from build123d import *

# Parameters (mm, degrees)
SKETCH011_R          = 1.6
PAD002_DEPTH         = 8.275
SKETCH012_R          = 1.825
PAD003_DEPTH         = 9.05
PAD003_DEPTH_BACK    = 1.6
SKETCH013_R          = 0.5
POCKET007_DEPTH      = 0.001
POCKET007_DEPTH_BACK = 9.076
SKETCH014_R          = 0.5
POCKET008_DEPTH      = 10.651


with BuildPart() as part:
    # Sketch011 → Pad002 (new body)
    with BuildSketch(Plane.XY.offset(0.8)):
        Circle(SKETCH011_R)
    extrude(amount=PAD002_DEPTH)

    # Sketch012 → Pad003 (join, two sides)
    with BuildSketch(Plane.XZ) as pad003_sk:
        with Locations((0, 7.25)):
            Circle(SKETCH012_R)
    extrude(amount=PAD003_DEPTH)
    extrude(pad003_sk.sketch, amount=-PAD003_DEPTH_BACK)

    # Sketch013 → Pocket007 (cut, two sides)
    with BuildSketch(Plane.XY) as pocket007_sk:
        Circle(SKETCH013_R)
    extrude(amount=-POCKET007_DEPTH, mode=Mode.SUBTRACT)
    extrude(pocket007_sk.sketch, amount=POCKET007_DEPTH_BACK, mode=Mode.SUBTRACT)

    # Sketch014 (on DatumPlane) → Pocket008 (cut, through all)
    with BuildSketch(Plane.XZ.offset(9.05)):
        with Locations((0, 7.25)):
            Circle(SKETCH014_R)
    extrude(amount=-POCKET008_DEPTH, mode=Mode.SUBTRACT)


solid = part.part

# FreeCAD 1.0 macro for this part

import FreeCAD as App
import Part
import Sketcher
Q = App.Units.Quantity

doc = App.newDocument("Part")
body = doc.addObject("PartDesign::Body", "Body")

# Sketch on XY plane
sketch1 = body.newObject("Sketcher::SketchObject", "Sketch")
sketch1.AttachmentSupport = (doc.getObject("XY_Plane"), [""])
sketch1.MapMode = "FlatFace"
sketch1.AttachmentOffset = App.Placement(App.Vector(0, 0, 0.8), App.Rotation())
sketch1.addGeometry(Part.Circle(App.Vector(0, 0, 0), App.Vector(0, 0, 1), 1.6), False)
sketch1.addConstraint([
    Sketcher.Constraint("Coincident", 0, 3, -1, 1),
    Sketcher.Constraint("Diameter", 0, Q("3.2 mm")),
])
pad1 = body.newObject("PartDesign::Pad", "Pad")
pad1.Profile = sketch1
pad1.Length = 8.275

# Sketch on XZ plane
sketch2 = body.newObject("Sketcher::SketchObject", "Sketch001")
sketch2.AttachmentSupport = (doc.getObject("XZ_Plane"), [""])
sketch2.MapMode = "FlatFace"
sketch2.addGeometry(Part.Circle(App.Vector(0, 7.25, 0), App.Vector(0, 0, 1), 1.825), False)
sketch2.addConstraint([
    Sketcher.Constraint("PointOnObject", 0, 3, -2),
    Sketcher.Constraint("Diameter", 0, Q("3.65 mm")),
    Sketcher.Constraint("DistanceY", -1, 1, 0, 3, Q("7.25 mm")),
])
pad2 = body.newObject("PartDesign::Pad", "Pad001")
pad2.Profile = sketch2
pad2.Type = "TwoLengths"
pad2.Length = 9.05
pad2.Length2 = 1.6

# Sketch on XY plane
sketch3 = body.newObject("Sketcher::SketchObject", "Sketch002")
sketch3.AttachmentSupport = (doc.getObject("XY_Plane"), [""])
sketch3.MapMode = "FlatFace"
sketch3.addGeometry(Part.Circle(App.Vector(0, 0, 0), App.Vector(0, 0, 1), 0.5), False)
sketch3.addConstraint([
    Sketcher.Constraint("Coincident", 0, 3, -1, 1),
    Sketcher.Constraint("Diameter", 0, Q("1 mm")),
])
pocket1 = body.newObject("PartDesign::Pocket", "Pocket")
pocket1.Profile = sketch3
pocket1.Type = "ThroughAll"
pocket1.Midplane = True

# Sketch on XZ plane
sketch4 = body.newObject("Sketcher::SketchObject", "Sketch003")
sketch4.AttachmentSupport = (doc.getObject("XZ_Plane"), [""])
sketch4.MapMode = "FlatFace"
sketch4.AttachmentOffset = App.Placement(App.Vector(0, 0, 9.05), App.Rotation())
sketch4.addGeometry(Part.Circle(App.Vector(0, 7.25, 0), App.Vector(0, 0, 1), 0.5), False)
sketch4.addConstraint([
    Sketcher.Constraint("PointOnObject", 0, 3, -2),
    Sketcher.Constraint("Diameter", 0, Q("1 mm")),
    Sketcher.Constraint("DistanceY", -1, 1, 0, 3, Q("7.25 mm")),
])
pocket2 = body.newObject("PartDesign::Pocket", "Pocket001")
pocket2.Profile = sketch4
pocket2.Type = "ThroughAll"

doc.recompute()
